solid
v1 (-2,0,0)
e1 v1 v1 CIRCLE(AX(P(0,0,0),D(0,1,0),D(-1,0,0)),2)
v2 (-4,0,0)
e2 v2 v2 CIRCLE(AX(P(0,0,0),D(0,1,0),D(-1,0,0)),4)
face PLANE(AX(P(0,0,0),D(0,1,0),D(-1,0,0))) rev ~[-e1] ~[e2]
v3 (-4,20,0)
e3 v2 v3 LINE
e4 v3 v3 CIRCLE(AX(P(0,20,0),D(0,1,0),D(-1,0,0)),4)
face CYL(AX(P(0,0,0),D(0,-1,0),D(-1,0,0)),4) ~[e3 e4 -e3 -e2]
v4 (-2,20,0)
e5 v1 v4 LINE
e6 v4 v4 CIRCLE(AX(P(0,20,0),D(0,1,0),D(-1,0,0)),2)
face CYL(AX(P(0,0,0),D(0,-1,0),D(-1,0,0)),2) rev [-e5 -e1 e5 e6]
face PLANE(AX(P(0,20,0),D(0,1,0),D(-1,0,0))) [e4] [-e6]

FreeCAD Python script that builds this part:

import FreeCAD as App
import Part
import Sketcher
from FreeCAD import Vector
Q = App.Units.Quantity

doc = App.newDocument("Part")
body = doc.addObject("PartDesign::Body", "Body")

sketch1 = body.newObject("Sketcher::SketchObject", "Sketch")
sketch1.AttachmentSupport = (doc.getObject("XZ_Plane"), [""])
sketch1.MapMode = "FlatFace"
sketch1.addGeometry([
    Part.Circle(Vector(0, 0, 0), Vector(0, 0, 1), 4),
    Part.Circle(Vector(0, 0, 0), Vector(0, 0, 1), 2),
], False)
sketch1.addConstraint([
    Sketcher.Constraint("Coincident", 0, 3, -1, 1),
    Sketcher.Constraint("Coincident", 1, 3, -1, 1),
    Sketcher.Constraint("Diameter", 0, Q("8 mm")),
    Sketcher.Constraint("Diameter", 1, Q("4 mm")),
])
pad1 = body.newObject("PartDesign::Pad", "Pad")
pad1.Profile = sketch1
pad1.Length = 20
pad1.Reversed = True

doc.recompute()
